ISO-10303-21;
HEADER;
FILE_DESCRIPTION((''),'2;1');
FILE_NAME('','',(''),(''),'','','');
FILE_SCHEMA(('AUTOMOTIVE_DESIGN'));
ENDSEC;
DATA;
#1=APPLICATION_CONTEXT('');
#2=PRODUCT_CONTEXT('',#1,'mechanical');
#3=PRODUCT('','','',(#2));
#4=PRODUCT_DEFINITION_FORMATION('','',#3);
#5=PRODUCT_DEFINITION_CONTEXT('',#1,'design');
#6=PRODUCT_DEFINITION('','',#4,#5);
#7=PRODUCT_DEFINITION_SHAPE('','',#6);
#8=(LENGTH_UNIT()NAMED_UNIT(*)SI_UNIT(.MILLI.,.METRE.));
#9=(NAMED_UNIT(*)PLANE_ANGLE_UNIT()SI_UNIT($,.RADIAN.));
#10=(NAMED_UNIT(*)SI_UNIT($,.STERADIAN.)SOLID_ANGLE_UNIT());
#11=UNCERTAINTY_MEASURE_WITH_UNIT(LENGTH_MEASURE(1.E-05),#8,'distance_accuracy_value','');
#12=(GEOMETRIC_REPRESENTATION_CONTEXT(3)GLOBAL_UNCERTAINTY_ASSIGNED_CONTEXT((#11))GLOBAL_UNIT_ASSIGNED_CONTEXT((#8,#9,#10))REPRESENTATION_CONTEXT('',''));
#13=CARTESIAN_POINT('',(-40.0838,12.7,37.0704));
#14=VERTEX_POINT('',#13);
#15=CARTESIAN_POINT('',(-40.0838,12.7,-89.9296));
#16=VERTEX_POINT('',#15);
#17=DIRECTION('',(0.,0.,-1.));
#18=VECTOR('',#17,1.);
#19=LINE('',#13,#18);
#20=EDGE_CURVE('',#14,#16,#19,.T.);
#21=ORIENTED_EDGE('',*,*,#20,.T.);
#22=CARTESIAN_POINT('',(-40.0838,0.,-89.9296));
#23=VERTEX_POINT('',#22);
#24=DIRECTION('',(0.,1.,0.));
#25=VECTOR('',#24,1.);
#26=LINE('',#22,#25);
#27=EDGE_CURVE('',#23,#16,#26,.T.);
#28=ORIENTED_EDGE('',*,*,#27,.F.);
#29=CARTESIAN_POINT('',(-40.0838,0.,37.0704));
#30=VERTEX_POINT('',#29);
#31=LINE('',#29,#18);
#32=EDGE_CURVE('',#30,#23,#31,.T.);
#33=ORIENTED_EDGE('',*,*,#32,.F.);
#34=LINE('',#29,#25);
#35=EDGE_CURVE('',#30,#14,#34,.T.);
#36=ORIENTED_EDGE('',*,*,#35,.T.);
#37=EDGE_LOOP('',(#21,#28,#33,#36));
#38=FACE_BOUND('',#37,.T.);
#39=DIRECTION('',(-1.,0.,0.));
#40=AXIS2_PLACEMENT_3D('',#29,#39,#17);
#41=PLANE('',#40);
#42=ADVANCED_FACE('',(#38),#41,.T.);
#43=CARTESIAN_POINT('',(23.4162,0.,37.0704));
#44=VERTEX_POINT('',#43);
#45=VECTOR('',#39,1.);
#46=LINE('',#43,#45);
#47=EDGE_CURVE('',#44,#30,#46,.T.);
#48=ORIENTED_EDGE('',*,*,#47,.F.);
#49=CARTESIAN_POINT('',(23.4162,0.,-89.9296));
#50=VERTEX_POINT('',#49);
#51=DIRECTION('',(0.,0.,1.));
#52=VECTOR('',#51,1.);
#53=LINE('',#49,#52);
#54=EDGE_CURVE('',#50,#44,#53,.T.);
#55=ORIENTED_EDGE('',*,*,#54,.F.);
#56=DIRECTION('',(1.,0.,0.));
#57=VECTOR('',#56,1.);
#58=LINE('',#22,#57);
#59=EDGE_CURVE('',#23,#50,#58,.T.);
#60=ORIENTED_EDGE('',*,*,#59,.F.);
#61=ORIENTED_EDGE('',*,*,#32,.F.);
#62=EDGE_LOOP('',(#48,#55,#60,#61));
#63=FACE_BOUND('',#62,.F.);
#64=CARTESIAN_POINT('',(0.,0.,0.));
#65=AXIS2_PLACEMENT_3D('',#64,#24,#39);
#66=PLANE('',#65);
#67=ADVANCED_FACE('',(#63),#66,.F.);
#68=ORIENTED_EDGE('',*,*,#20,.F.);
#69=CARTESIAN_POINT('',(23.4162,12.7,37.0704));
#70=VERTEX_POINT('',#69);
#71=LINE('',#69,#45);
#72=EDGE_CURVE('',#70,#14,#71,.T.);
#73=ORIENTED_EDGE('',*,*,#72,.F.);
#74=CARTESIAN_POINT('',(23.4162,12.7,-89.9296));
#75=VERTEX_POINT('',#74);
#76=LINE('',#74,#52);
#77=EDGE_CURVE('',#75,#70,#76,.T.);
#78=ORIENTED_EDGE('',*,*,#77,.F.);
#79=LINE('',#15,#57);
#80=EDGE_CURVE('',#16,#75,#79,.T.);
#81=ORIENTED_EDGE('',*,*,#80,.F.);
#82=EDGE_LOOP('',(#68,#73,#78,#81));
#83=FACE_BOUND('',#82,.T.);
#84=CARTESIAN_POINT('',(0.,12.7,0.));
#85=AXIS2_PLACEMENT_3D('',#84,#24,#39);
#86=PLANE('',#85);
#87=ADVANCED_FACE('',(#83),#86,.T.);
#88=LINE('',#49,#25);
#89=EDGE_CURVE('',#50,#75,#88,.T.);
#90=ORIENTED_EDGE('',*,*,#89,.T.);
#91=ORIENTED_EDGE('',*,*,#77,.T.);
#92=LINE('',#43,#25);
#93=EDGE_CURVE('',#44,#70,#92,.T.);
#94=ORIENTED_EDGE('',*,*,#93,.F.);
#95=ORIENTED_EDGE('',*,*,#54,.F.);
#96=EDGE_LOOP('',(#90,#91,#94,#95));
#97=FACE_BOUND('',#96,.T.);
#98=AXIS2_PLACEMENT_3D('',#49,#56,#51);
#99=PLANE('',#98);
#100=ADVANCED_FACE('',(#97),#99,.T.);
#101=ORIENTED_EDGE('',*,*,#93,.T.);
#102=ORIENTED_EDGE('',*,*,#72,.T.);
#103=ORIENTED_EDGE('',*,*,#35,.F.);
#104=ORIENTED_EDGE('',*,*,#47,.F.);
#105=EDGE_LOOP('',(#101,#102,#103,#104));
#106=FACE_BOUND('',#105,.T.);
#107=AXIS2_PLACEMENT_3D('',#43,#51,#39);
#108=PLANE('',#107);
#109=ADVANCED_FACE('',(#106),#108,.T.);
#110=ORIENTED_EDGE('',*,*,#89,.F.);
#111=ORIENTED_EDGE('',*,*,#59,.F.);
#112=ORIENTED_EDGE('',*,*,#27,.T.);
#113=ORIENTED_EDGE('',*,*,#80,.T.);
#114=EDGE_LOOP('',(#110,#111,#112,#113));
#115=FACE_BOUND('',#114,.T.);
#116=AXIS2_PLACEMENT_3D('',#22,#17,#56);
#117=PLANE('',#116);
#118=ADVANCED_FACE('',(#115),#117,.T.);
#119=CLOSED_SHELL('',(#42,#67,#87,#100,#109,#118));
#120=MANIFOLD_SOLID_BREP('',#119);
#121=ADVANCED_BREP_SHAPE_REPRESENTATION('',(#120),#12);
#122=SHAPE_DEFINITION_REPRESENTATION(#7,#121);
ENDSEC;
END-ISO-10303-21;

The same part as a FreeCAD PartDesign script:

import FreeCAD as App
import Part
import Sketcher
from FreeCAD import Vector
Q = App.Units.Quantity


def add_polygon(sketch, points):
    """Adds a closed chain of lines whose ends are joined by coincident constraints."""
    first, n = sketch.GeometryCount, len(points)
    for a, b in zip(points, points[1:] + points[:1]):
        sketch.addGeometry(Part.LineSegment(App.Vector(*a, 0), App.Vector(*b, 0)), False)
    for i in range(n):
        sketch.addConstraint(Sketcher.Constraint("Coincident", first + i, 2, first + (i + 1) % n, 1))

doc = App.newDocument("Part")
body = doc.addObject("PartDesign::Body", "Body")

# Sketch on XZ plane
sketch1 = body.newObject("Sketcher::SketchObject", "Sketch")
sketch1.AttachmentSupport = (doc.getObject("XZ_Plane"), [""])
sketch1.MapMode = "FlatFace"
add_polygon(sketch1, [(-40.0838, 37.0704), (23.4162, 37.0704), (23.4162, -89.9296), (-40.0838, -89.9296)])  # lines 0-3
sketch1.addConstraint([
    Sketcher.Constraint("Horizontal", 0),
    Sketcher.Constraint("Vertical", 1),
    Sketcher.Constraint("Horizontal", 2),
    Sketcher.Constraint("Vertical", 3),
    Sketcher.Constraint("DistanceY", 1, 2, 1, 1, Q("5 in")),
    Sketcher.Constraint("DistanceX", 0, 1, 0, 2, Q("2.5 in")),
    Sketcher.Constraint("DistanceX", -1, 1, 0, 2, Q("0.9219 in")),
    Sketcher.Constraint("DistanceY", -1, 1, 0, 2, 37.0704),
])
pad1 = body.newObject("PartDesign::Pad", "Pad")
pad1.Profile = sketch1
pad1.Length = Q("0.5 in")
pad1.Reversed = True

doc.recompute()
